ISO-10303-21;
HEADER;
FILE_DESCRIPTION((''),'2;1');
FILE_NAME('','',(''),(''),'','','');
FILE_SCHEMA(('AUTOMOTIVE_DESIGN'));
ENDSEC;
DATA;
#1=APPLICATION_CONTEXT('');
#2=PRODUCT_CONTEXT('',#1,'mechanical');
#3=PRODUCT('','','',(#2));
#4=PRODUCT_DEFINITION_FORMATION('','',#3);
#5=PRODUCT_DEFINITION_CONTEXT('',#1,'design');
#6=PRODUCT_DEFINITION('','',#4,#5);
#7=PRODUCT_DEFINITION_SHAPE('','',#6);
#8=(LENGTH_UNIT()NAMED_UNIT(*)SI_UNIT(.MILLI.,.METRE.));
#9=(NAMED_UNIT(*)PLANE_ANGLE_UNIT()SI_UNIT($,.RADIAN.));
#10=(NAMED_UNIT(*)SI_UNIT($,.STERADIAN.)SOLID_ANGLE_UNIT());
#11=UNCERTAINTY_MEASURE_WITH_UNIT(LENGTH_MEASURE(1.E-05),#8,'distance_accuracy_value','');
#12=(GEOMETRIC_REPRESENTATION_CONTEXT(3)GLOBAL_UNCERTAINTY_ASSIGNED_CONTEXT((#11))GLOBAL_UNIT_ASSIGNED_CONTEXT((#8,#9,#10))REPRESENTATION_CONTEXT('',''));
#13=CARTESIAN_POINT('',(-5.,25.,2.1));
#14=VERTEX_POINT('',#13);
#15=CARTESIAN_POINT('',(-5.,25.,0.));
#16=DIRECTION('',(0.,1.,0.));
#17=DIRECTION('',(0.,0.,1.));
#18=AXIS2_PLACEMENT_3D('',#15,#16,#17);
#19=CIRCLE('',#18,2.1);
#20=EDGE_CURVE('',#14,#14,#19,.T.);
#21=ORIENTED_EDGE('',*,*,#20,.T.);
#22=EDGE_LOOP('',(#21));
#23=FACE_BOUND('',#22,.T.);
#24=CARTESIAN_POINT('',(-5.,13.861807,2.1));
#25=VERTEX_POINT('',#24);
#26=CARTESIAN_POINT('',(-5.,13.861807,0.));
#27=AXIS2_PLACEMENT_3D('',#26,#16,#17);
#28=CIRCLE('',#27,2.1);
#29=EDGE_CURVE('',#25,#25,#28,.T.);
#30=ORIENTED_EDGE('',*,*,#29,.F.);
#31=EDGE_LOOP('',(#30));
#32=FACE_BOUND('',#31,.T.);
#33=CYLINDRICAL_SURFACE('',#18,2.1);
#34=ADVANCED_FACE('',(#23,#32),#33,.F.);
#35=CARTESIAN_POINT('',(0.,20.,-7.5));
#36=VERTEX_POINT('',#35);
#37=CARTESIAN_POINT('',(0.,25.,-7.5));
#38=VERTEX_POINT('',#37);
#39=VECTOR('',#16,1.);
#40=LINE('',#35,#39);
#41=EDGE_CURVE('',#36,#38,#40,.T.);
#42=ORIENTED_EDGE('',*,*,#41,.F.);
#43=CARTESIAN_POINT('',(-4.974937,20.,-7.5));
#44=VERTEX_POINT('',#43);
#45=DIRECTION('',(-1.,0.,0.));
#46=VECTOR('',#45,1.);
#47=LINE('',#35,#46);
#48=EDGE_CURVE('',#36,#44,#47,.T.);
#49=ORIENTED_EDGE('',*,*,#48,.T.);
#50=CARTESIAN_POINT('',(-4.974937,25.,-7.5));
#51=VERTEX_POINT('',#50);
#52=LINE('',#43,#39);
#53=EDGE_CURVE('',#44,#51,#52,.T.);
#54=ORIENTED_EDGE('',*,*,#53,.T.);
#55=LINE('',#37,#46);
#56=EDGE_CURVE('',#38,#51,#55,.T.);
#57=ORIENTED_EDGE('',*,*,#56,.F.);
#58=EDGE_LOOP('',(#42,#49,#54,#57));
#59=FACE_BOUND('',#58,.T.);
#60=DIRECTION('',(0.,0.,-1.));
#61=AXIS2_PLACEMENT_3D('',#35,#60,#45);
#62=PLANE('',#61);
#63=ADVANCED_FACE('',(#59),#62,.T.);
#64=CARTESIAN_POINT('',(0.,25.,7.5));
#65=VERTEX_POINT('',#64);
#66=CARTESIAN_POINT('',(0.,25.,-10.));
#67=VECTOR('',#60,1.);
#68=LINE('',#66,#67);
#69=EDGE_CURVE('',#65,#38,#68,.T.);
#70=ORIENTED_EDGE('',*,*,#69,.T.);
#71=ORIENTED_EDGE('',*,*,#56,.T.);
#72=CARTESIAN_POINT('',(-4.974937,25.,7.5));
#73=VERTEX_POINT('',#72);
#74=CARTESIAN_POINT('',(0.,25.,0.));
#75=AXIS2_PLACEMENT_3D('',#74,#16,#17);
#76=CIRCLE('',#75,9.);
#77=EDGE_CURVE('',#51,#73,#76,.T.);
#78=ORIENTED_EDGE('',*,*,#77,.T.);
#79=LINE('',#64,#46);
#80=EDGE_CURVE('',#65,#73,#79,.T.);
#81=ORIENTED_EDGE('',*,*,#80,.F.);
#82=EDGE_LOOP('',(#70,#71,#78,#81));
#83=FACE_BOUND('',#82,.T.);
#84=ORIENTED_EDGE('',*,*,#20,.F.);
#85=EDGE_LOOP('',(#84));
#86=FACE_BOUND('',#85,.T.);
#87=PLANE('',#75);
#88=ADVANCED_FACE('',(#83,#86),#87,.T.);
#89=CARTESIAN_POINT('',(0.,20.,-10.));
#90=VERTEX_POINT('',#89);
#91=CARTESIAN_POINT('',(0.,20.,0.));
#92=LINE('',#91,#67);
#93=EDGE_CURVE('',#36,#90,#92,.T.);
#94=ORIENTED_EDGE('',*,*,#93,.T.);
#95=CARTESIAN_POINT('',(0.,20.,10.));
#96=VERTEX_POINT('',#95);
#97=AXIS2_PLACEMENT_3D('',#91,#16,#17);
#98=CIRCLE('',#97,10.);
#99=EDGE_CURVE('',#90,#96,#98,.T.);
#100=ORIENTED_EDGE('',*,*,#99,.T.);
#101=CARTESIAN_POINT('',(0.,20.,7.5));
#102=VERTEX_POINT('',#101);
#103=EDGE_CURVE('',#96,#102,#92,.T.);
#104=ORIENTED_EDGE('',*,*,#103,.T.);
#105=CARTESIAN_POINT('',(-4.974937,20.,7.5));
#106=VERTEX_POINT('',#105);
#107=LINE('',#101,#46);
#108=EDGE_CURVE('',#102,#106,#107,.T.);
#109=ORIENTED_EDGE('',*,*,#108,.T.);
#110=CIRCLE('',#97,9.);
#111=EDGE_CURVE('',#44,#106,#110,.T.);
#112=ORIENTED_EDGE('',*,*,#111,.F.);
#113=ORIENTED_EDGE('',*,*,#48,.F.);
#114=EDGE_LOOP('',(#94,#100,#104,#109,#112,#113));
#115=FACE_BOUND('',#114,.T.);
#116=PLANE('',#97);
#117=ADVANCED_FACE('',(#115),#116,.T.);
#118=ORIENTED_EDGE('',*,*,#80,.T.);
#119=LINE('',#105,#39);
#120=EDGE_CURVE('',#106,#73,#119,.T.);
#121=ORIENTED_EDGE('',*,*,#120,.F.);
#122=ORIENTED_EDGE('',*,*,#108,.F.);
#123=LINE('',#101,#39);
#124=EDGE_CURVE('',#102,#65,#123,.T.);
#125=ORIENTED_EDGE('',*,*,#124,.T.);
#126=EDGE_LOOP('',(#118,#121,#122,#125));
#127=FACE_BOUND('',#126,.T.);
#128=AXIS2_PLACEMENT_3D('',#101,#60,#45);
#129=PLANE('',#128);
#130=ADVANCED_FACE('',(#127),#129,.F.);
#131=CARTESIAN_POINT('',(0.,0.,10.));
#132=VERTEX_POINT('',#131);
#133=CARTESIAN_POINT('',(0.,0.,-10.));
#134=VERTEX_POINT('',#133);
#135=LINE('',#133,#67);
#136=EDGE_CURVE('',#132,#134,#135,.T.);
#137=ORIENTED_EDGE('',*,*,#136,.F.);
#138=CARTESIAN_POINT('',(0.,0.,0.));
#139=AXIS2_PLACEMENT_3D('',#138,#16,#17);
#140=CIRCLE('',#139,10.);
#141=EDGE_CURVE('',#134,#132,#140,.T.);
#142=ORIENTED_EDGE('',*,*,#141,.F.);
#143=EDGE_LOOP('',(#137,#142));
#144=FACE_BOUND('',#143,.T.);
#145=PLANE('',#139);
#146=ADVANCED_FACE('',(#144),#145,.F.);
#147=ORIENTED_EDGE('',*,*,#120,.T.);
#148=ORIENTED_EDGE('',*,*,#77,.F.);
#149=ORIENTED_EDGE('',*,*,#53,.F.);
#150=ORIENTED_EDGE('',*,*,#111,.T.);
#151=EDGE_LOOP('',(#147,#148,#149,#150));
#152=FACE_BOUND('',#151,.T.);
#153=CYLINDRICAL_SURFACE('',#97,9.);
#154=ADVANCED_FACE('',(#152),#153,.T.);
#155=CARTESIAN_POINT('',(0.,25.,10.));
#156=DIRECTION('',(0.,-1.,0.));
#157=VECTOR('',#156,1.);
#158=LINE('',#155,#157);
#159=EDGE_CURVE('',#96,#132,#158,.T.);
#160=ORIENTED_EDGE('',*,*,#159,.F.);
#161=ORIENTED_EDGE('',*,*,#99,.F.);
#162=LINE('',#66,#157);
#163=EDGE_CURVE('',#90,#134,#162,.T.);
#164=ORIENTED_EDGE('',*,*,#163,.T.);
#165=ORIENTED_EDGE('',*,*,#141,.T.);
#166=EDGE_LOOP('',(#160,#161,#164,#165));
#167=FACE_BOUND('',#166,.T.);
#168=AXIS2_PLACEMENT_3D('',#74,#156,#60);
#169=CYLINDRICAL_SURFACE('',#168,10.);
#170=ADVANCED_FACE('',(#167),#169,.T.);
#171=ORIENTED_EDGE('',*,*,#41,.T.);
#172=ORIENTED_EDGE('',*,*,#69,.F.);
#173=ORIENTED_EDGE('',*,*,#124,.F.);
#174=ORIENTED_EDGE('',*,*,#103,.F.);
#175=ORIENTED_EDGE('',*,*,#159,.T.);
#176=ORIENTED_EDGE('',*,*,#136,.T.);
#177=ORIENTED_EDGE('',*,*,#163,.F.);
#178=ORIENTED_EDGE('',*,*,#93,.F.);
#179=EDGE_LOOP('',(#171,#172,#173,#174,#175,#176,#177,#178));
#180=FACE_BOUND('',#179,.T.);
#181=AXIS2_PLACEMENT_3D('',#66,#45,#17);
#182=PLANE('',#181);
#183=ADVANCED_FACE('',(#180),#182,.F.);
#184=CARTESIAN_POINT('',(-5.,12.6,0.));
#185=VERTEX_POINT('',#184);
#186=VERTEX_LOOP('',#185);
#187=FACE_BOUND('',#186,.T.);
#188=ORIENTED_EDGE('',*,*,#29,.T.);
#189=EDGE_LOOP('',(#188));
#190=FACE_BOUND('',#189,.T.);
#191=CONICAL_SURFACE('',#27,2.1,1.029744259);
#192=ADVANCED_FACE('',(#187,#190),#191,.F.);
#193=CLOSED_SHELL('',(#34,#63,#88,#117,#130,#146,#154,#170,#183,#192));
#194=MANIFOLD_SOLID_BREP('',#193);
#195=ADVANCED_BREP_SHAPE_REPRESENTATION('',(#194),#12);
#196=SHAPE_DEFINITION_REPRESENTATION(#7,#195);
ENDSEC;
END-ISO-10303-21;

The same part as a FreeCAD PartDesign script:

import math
import FreeCAD as App
import Part
import Sketcher
from FreeCAD import Vector

doc = App.newDocument("Part")
body = doc.addObject("PartDesign::Body", "Body")

# Sketch on XZ plane
sketch1 = body.newObject("Sketcher::SketchObject", "Sketch")
sketch1.AttachmentSupport = (doc.getObject("XZ_Plane"), [""])
sketch1.MapMode = "FlatFace"
sketch1.addGeometry([
    Part.LineSegment(Vector(0, 10, 0), Vector(0, -10, 0)),
    Part.ArcOfCircle(Part.Circle(Vector(0, 0, 0), Vector(0, 0, 1), 10), math.radians(90), math.radians(270)),
], False)
sketch1.addConstraint([
    Sketcher.Constraint("Coincident", 0, 1, 1, 1),
    Sketcher.Constraint("Coincident", 1, 2, 0, 2),
    Sketcher.Constraint("Vertical", 0),
    Sketcher.Constraint("Coincident", 1, 3, -1, 1),
    Sketcher.Constraint("PointOnObject", 0, 1, -2),
    Sketcher.Constraint("Radius", 1, 10.0),
])
pad1 = body.newObject("PartDesign::Pad", "Pad")
pad1.Profile = sketch1
pad1.Length = 25
pad1.Reversed = True

# Sketch on XZ plane
sketch2 = body.newObject("Sketcher::SketchObject", "Sketch001")
sketch2.AttachmentSupport = (doc.getObject("XZ_Plane"), [""])
sketch2.MapMode = "FlatFace"
sketch2.AttachmentOffset = App.Placement(Vector(0, 0, -25), App.Rotation())
sketch2.addGeometry([
    Part.LineSegment(Vector(0, -7.5, 0), Vector(0, -10, 0)),  # 0
    Part.ArcOfCircle(Part.Circle(Vector(0, 0, 0), Vector(0, 0, 1), 10), math.radians(90), math.radians(270)),  # 1
    Part.LineSegment(Vector(0, 10, 0), Vector(0, 7.5, 0)),  # 2
    Part.LineSegment(Vector(0, 7.5, 0), Vector(-4.974937, 7.5, 0)),  # 3
    Part.ArcOfCircle(Part.Circle(Vector(0, 0, 0), Vector(0, 0, 1), 9), math.radians(123.55731), math.radians(236.44269)),  # 4
    Part.LineSegment(Vector(-4.974937, -7.5, 0), Vector(0, -7.5, 0)),  # 5
], False)
sketch2.addConstraint([
    Sketcher.Constraint("Coincident", 0, 2, 1, 2),
    Sketcher.Constraint("Coincident", 1, 1, 2, 1),
    Sketcher.Constraint("Coincident", 2, 2, 3, 1),
    Sketcher.Constraint("Coincident", 3, 2, 4, 1),
    Sketcher.Constraint("Coincident", 4, 2, 5, 1),
    Sketcher.Constraint("Coincident", 5, 2, 0, 1),
    Sketcher.Constraint("Vertical", 0),
    Sketcher.Constraint("Vertical", 2),
    Sketcher.Constraint("Horizontal", 3),
    Sketcher.Constraint("Horizontal", 5),
    Sketcher.Constraint("Coincident", 1, 3, -1, 1),
    Sketcher.Constraint("Coincident", 4, 3, -1, 1),
    Sketcher.Constraint("Symmetric", 2, 2, 5, 2, -1, 1),
    Sketcher.Constraint("PointOnObject", 0, 2, -2),
    Sketcher.Constraint("Radius", 1, 10.0),
    Sketcher.Constraint("Radius", 4, 9.0),
    Sketcher.Constraint("DistanceY", 0, 2, 0, 1, 2.5),
])
pocket1 = body.newObject("PartDesign::Pocket", "Pocket")
pocket1.Profile = sketch2
pocket1.Length = 5
pocket1.Reversed = True

# Sketch on XZ plane
sketch3 = body.newObject("Sketcher::SketchObject", "Sketch002")
sketch3.AttachmentSupport = (doc.getObject("XZ_Plane"), [""])
sketch3.MapMode = "FlatFace"
sketch3.AttachmentOffset = App.Placement(Vector(0, 0, -25), App.Rotation())
sketch3.addGeometry(Part.Circle(Vector(-5, 0, 0), Vector(0, 0, 1), 2.1), False)
sketch3.addConstraint([
    Sketcher.Constraint("PointOnObject", 0, 3, -1),
    Sketcher.Constraint("Diameter", 0, 4.2),
    Sketcher.Constraint("DistanceX", 0, 3, -1, 1, 5.0),
])
doc.recompute()
hole = body.newObject("PartDesign::Hole", "Hole")
hole.Profile = sketch3
hole.ThreadType = "None"
hole.Diameter = 4.2
hole.DepthType = "Dimension"
hole.Depth = 11.138193
hole.DrillPoint = "Angled"
hole.DrillPointAngle = 118
hole.Reversed = True

doc.recompute()
